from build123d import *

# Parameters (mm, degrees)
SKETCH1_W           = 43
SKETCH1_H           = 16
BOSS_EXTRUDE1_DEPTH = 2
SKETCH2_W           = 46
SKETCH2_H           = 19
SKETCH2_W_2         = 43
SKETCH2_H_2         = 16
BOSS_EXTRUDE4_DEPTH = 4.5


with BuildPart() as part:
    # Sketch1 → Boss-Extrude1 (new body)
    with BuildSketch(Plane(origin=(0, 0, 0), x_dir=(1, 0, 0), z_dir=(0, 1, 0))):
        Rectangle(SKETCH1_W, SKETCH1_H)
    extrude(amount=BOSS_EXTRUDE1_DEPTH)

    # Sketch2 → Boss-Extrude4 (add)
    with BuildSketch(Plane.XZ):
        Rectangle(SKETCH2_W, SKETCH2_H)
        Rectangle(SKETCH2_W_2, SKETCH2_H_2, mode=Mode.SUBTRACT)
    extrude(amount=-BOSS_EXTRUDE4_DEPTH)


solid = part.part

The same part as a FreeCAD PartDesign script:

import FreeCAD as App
import Part
import Sketcher

V = App.Vector

doc = App.newDocument("Part")
body = doc.addObject("PartDesign::Body", "Body")

sketch1 = body.newObject("Sketcher::SketchObject", "Sketch")
sketch1.AttachmentSupport = (doc.getObject("XZ_Plane"), [""])
sketch1.MapMode = "FlatFace"
sketch1.addGeometry([
    Part.LineSegment(V(-22, -8, 0), V(-22, 8, 0)),
    Part.LineSegment(V(-22, 8, 0), V(22, 8, 0)),
    Part.LineSegment(V(22, 8, 0), V(22, -8, 0)),
    Part.LineSegment(V(22, -8, 0), V(-22, -8, 0)),
], False)
sketch1.addConstraint([
    Sketcher.Constraint("Coincident", 0, 2, 1, 1),
    Sketcher.Constraint("Coincident", 1, 2, 2, 1),
    Sketcher.Constraint("Coincident", 2, 2, 3, 1),
    Sketcher.Constraint("Coincident", 3, 2, 0, 1),
    Sketcher.Constraint("Vertical", 0),
    Sketcher.Constraint("Horizontal", 1),
    Sketcher.Constraint("Vertical", 2),
    Sketcher.Constraint("Horizontal", 3),
    Sketcher.Constraint("Symmetric", 0, 2, 2, 2, -1, 1),
    Sketcher.Constraint("DistanceX", 1, 1, 1, 2, 43.0),
    Sketcher.Constraint("DistanceY", 0, 1, 0, 2, 16.0),
])
pad1 = body.newObject("PartDesign::Pad", "Pad")
pad1.Profile = sketch1
pad1.Length = 2
pad1.Reversed = True

sketch2 = body.newObject("Sketcher::SketchObject", "Sketch001")
sketch2.AttachmentSupport = (doc.getObject("XZ_Plane"), [""])
sketch2.MapMode = "FlatFace"
sketch2.addGeometry([
    Part.LineSegment(V(-23, 10, 0), V(-23, -10, 0)),
    Part.LineSegment(V(-23, -10, 0), V(23, -10, 0)),
    Part.LineSegment(V(23, -10, 0), V(23, 10, 0)),
    Part.LineSegment(V(23, 10, 0), V(-23, 10, 0)),
    Part.LineSegment(V(22, -8, 0), V(-22, -8, 0)),
    Part.LineSegment(V(-22, -8, 0), V(-22, 8, 0)),
    Part.LineSegment(V(-22, 8, 0), V(22, 8, 0)),
    Part.LineSegment(V(22, 8, 0), V(22, -8, 0)),
], False)
sketch2.addConstraint([
    Sketcher.Constraint("Coincident", 0, 2, 1, 1),
    Sketcher.Constraint("Coincident", 1, 2, 2, 1),
    Sketcher.Constraint("Coincident", 2, 2, 3, 1),
    Sketcher.Constraint("Coincident", 3, 2, 0, 1),
    Sketcher.Constraint("Coincident", 4, 2, 5, 1),
    Sketcher.Constraint("Coincident", 5, 2, 6, 1),
    Sketcher.Constraint("Coincident", 6, 2, 7, 1),
    Sketcher.Constraint("Coincident", 7, 2, 4, 1),
    Sketcher.Constraint("Vertical", 0),
    Sketcher.Constraint("Horizontal", 1),
    Sketcher.Constraint("Vertical", 2),
    Sketcher.Constraint("Horizontal", 3),
    Sketcher.Constraint("Horizontal", 4),
    Sketcher.Constraint("Vertical", 5),
    Sketcher.Constraint("Horizontal", 6),
    Sketcher.Constraint("Vertical", 7),
    Sketcher.Constraint("Symmetric", 0, 2, 2, 2, -1, 1),
    Sketcher.Constraint("Symmetric", 4, 2, 6, 2, -1, 1),
    Sketcher.Constraint("DistanceX", 1, 1, 1, 2, 46.0),
    Sketcher.Constraint("DistanceX", 4, 2, 4, 1, 43.0),
    Sketcher.Constraint("DistanceY", 0, 2, 0, 1, 19.0),
    Sketcher.Constraint("DistanceY", 5, 1, 5, 2, 16.0),
])
pad2 = body.newObject("PartDesign::Pad", "Pad001")
pad2.Profile = sketch2
pad2.Length = 4.5
pad2.Reversed = True

doc.recompute()
